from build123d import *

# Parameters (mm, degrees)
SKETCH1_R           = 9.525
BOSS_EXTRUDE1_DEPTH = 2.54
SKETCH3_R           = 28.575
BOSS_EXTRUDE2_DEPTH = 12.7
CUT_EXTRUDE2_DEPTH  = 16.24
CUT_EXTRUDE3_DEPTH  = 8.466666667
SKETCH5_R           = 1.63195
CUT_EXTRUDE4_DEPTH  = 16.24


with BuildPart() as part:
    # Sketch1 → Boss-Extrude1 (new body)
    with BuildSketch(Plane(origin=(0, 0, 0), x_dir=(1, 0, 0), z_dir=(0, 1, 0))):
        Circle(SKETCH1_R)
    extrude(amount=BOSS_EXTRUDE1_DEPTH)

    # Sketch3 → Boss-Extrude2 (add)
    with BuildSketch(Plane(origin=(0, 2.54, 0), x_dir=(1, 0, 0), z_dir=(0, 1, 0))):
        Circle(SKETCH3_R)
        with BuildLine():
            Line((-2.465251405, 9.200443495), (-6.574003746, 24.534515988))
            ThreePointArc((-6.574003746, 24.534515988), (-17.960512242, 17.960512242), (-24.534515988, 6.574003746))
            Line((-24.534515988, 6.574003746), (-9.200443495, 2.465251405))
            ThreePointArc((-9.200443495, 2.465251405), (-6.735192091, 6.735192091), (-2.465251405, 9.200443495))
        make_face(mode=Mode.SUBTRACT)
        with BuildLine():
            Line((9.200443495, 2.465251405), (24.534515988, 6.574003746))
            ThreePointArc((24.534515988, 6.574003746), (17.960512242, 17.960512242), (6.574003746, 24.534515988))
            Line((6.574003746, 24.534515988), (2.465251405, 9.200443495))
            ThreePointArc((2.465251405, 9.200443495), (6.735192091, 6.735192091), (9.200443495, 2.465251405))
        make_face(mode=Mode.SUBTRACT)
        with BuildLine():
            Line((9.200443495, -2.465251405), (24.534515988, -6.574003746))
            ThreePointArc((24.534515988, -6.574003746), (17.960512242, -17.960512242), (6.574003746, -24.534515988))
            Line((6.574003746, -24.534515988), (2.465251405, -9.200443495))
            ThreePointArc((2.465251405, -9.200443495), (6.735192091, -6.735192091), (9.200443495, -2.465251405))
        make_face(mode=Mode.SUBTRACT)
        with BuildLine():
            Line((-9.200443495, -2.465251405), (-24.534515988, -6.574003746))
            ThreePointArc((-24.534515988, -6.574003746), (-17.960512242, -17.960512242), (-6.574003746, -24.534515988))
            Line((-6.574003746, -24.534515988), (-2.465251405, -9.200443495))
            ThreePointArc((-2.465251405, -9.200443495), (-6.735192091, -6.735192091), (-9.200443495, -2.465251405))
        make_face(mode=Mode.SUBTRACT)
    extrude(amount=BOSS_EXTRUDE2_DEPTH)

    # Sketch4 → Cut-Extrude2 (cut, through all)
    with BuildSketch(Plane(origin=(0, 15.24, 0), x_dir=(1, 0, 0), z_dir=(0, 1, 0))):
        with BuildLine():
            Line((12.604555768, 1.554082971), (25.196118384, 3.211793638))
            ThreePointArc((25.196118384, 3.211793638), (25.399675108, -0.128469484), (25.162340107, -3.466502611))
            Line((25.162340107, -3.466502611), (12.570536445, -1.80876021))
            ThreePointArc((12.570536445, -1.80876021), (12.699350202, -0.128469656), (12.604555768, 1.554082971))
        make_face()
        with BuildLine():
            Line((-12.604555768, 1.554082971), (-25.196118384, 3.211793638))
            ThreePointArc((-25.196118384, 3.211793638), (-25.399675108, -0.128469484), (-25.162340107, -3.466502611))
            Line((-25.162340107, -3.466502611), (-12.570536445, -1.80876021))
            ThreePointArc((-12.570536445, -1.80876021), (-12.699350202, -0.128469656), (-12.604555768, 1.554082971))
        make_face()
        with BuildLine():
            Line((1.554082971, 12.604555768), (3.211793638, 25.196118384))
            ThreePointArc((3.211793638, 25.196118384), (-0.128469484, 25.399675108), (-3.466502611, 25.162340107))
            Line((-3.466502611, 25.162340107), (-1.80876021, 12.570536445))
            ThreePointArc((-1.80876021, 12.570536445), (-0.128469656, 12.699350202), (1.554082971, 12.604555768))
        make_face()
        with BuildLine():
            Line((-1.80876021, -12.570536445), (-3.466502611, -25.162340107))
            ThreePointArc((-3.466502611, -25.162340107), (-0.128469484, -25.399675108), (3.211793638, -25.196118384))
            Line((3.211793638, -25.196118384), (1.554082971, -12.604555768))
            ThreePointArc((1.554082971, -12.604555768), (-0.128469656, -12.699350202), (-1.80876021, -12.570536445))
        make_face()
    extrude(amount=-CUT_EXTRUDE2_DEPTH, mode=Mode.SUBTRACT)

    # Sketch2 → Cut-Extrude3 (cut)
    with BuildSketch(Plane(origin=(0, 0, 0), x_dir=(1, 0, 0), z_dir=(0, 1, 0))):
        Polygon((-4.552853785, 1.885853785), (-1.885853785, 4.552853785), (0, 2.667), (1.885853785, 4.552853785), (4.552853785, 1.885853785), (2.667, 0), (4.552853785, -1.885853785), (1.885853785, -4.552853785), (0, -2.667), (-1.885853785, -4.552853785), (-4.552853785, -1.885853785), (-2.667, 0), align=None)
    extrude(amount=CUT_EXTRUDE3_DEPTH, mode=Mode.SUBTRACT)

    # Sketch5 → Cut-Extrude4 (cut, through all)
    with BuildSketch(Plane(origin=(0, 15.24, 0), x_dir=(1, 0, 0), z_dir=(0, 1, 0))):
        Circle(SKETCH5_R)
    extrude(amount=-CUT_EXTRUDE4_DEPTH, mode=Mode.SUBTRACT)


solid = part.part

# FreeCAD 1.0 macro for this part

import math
import FreeCAD as App
import Part
import Sketcher
from FreeCAD import Vector
Q = App.Units.Quantity


def add_polygon(sketch, points):
    """Adds a closed chain of lines whose ends are joined by coincident constraints."""
    first, n = sketch.GeometryCount, len(points)
    for a, b in zip(points, points[1:] + points[:1]):
        sketch.addGeometry(Part.LineSegment(App.Vector(*a, 0), App.Vector(*b, 0)), False)
    for i in range(n):
        sketch.addConstraint(Sketcher.Constraint("Coincident", first + i, 2, first + (i + 1) % n, 1))

doc = App.newDocument("Part")
body = doc.addObject("PartDesign::Body", "Body")

sketch1 = body.newObject("Sketcher::SketchObject", "Sketch")
sketch1.AttachmentSupport = (doc.getObject("XZ_Plane"), [""])
sketch1.MapMode = "FlatFace"
sketch1.addGeometry(Part.Circle(Vector(0, 0, 0), Vector(0, 0, 1), 10), False)
sketch1.addConstraint([
    Sketcher.Constraint("Coincident", 0, 3, -1, 1),
    Sketcher.Constraint("Diameter", 0, Q("0.75 in")),
])
pad1 = body.newObject("PartDesign::Pad", "Pad")
pad1.Profile = sketch1
pad1.Length = Q("0.1 in")
pad1.Reversed = True

sketch2 = body.newObject("Sketcher::SketchObject", "Sketch001")
sketch2.AttachmentSupport = (doc.getObject("XZ_Plane"), [""])
sketch2.MapMode = "FlatFace"
sketch2.AttachmentOffset = App.Placement(Vector(0, 0, -0.1 * 25.4), App.Rotation())
sketch2.addGeometry([
    Part.Circle(Vector(0, 0, 0), Vector(0, 0, 1), 29),
    Part.LineSegment(Vector(-25, 7, 0), Vector(-9, 2, 0)),
    Part.ArcOfCircle(Part.Circle(Vector(0, 0, 0), Vector(0, 0, 1), 10), math.radians(105), math.radians(165)),
    Part.LineSegment(Vector(-2, 9, 0), Vector(-7, 25, 0)),
    Part.ArcOfCircle(Part.Circle(Vector(0, 0, 0), Vector(0, 0, 1), 25), math.radians(105), math.radians(165)),
    Part.ArcOfCircle(Part.Circle(Vector(0, 0, 0), Vector(0, 0, 1), 10), math.radians(15), math.radians(75)),
    Part.LineSegment(Vector(9, 2, 0), Vector(25, 7, 0)),
    Part.ArcOfCircle(Part.Circle(Vector(0, 0, 0), Vector(0, 0, 1), 25), math.radians(15), math.radians(75)),
    Part.LineSegment(Vector(7, 25, 0), Vector(2, 9, 0)),
    Part.LineSegment(Vector(-7, -25, 0), Vector(-2, -9, 0)),
    Part.ArcOfCircle(Part.Circle(Vector(0, 0, 0), Vector(0, 0, 1), 10), math.radians(-165), math.radians(-105)),
    Part.LineSegment(Vector(-9, -2, 0), Vector(-25, -7, 0)),
    Part.ArcOfCircle(Part.Circle(Vector(0, 0, 0), Vector(0, 0, 1), 25), math.radians(-165), math.radians(-105)),
    Part.LineSegment(Vector(25, -7, 0), Vector(9, -2, 0)),
    Part.ArcOfCircle(Part.Circle(Vector(0, 0, 0), Vector(0, 0, 1), 10), math.radians(-75), math.radians(-15)),
    Part.LineSegment(Vector(2, -9, 0), Vector(7, -25, 0)),
    Part.ArcOfCircle(Part.Circle(Vector(0, 0, 0), Vector(0, 0, 1), 25), math.radians(-75), math.radians(-15)),
], False)
sketch2.addConstraint([
    Sketcher.Constraint("Coincident", 1, 2, 2, 2),
    Sketcher.Constraint("Coincident", 2, 1, 3, 1),
    Sketcher.Constraint("Coincident", 3, 2, 4, 1),
    Sketcher.Constraint("Coincident", 4, 2, 1, 1),
    Sketcher.Constraint("Coincident", 5, 1, 6, 1),
    Sketcher.Constraint("Coincident", 6, 2, 7, 1),
    Sketcher.Constraint("Coincident", 7, 2, 8, 1),
    Sketcher.Constraint("Coincident", 8, 2, 5, 2),
    Sketcher.Constraint("Coincident", 9, 2, 10, 2),
    Sketcher.Constraint("Coincident", 10, 1, 11, 1),
    Sketcher.Constraint("Coincident", 11, 2, 12, 1),
    Sketcher.Constraint("Coincident", 12, 2, 9, 1),
    Sketcher.Constraint("Coincident", 13, 2, 14, 2),
    Sketcher.Constraint("Coincident", 14, 1, 15, 1),
    Sketcher.Constraint("Coincident", 15, 2, 16, 1),
    Sketcher.Constraint("Coincident", 16, 2, 13, 1),
    Sketcher.Constraint("Coincident", 0, 3, -1, 1),
    Sketcher.Constraint("Coincident", 2, 3, -1, 1),
    Sketcher.Constraint("Coincident", 4, 3, -1, 1),
    Sketcher.Constraint("Coincident", 5, 3, -1, 1),
    Sketcher.Constraint("Coincident", 7, 3, -1, 1),
    Sketcher.Constraint("Coincident", 10, 3, -1, 1),
    Sketcher.Constraint("Coincident", 12, 3, -1, 1),
    Sketcher.Constraint("Coincident", 14, 3, -1, 1),
    Sketcher.Constraint("Coincident", 16, 3, -1, 1),
    Sketcher.Constraint("Equal", 2, 5),
    Sketcher.Constraint("Equal", 4, 7),
    Sketcher.Constraint("Equal", 5, 10),
    Sketcher.Constraint("Equal", 7, 12),
    Sketcher.Constraint("Equal", 10, 14),
    Sketcher.Constraint("Equal", 12, 16),
    Sketcher.Constraint("Perpendicular", 3, 6),
    Sketcher.Constraint("Perpendicular", 1, 8),
    Sketcher.Constraint("Parallel", 8, 9),
    Sketcher.Constraint("Parallel", 6, 11),
    Sketcher.Constraint("Perpendicular", 9, 13),
    Sketcher.Constraint("Perpendicular", 11, 15),
    Sketcher.Constraint("Horizontal", 1, 2, 5, 1),
    Sketcher.Constraint("Horizontal", 4, 2, 6, 2),
    Sketcher.Constraint("Horizontal", 3, 2, 7, 2),
    Sketcher.Constraint("Horizontal", 10, 1, 13, 2),
    Sketcher.Constraint("Horizontal", 9, 2, 14, 1),
    Sketcher.Constraint("Vertical", 2, 1, 9, 2),
    Sketcher.Constraint("Vertical", 1, 2, 10, 1),
    Sketcher.Constraint("Radius", 4, Q("1 in")),
    Sketcher.Constraint("Diameter", 0, Q("2.25 in")),
    Sketcher.Constraint("Angle", 1, Q("-15 deg")),
    Sketcher.Constraint("Radius", 2, Q("0.375 in")),
    Sketcher.Constraint("DistanceY", -1, 1, 1, 2, 2.465251),
    Sketcher.Constraint("DistanceX", 2, 1, -1, 1, 2.465251),
])
pad2 = body.newObject("PartDesign::Pad", "Pad001")
pad2.Profile = sketch2
pad2.Length = Q("0.5 in")
pad2.Reversed = True

sketch3 = body.newObject("Sketcher::SketchObject", "Sketch002")
sketch3.AttachmentSupport = (doc.getObject("XZ_Plane"), [""])
sketch3.MapMode = "FlatFace"
sketch3.AttachmentOffset = App.Placement(Vector(0, 0, -0.6 * 25.4), App.Rotation())
sketch3.addGeometry([
    Part.LineSegment(Vector(25.2, -3.2, 0), Vector(12.6, -1.6, 0)),
    Part.ArcOfCircle(Part.Circle(Vector(0, 0, 0), Vector(0, 0, 1), 12.7), math.radians(-7.03), math.radians(8.19)),
    Part.LineSegment(Vector(12.6, 1.8, 0), Vector(25.2, 3.5, 0)),
    Part.ArcOfCircle(Part.Circle(Vector(0, 0, 0), Vector(0, 0, 1), 25.4), math.radians(-7.26), math.radians(7.84)),
    Part.LineSegment(Vector(-12.6, -1.6, 0), Vector(-25.2, -3.2, 0)),
    Part.ArcOfCircle(Part.Circle(Vector(0, 0, 0), Vector(0, 0, 1), 25.4), math.radians(172.16), math.radians(187.26)),
    Part.LineSegment(Vector(-25.2, 3.5, 0), Vector(-12.6, 1.8, 0)),
    Part.ArcOfCircle(Part.Circle(Vector(0, 0, 0), Vector(0, 0, 1), 12.7), math.radians(171.81), math.radians(187.03)),
    Part.LineSegment(Vector(1.6, -12.6, 0), Vector(3.2, -25.2, 0)),
    Part.ArcOfCircle(Part.Circle(Vector(0, 0, 0), Vector(0, 0, 1), 25.4), math.radians(-97.84), math.radians(-82.74)),
    Part.LineSegment(Vector(-3.5, -25.2, 0), Vector(-1.8, -12.6, 0)),
    Part.ArcOfCircle(Part.Circle(Vector(0, 0, 0), Vector(0, 0, 1), 12.7), math.radians(-98.19), math.radians(-82.97)),
    Part.LineSegment(Vector(-1.8, 12.6, 0), Vector(-3.5, 25.2, 0)),
    Part.ArcOfCircle(Part.Circle(Vector(0, 0, 0), Vector(0, 0, 1), 25.4), math.radians(82.74), math.radians(97.84)),
    Part.LineSegment(Vector(3.2, 25.2, 0), Vector(1.6, 12.6, 0)),
    Part.ArcOfCircle(Part.Circle(Vector(0, 0, 0), Vector(0, 0, 1), 12.7), math.radians(82.97), math.radians(98.19)),
], False)
sketch3.addConstraint([
    Sketcher.Constraint("Coincident", 0, 2, 1, 1),
    Sketcher.Constraint("Coincident", 1, 2, 2, 1),
    Sketcher.Constraint("Coincident", 2, 2, 3, 2),
    Sketcher.Constraint("Coincident", 3, 1, 0, 1),
    Sketcher.Constraint("Coincident", 4, 2, 5, 2),
    Sketcher.Constraint("Coincident", 5, 1, 6, 1),
    Sketcher.Constraint("Coincident", 6, 2, 7, 1),
    Sketcher.Constraint("Coincident", 7, 2, 4, 1),
    Sketcher.Constraint("Coincident", 8, 2, 9, 2),
    Sketcher.Constraint("Coincident", 9, 1, 10, 1),
    Sketcher.Constraint("Coincident", 10, 2, 11, 1),
    Sketcher.Constraint("Coincident", 11, 2, 8, 1),
    Sketcher.Constraint("Coincident", 12, 2, 13, 2),
    Sketcher.Constraint("Coincident", 13, 1, 14, 1),
    Sketcher.Constraint("Coincident", 14, 2, 15, 1),
    Sketcher.Constraint("Coincident", 15, 2, 12, 1),
    Sketcher.Constraint("Coincident", 1, 3, -1, 1),
    Sketcher.Constraint("Coincident", 3, 3, -1, 1),
    Sketcher.Constraint("Coincident", 5, 3, -1, 1),
    Sketcher.Constraint("Coincident", 7, 3, -1, 1),
    Sketcher.Constraint("Coincident", 9, 3, -1, 1),
    Sketcher.Constraint("Coincident", 11, 3, -1, 1),
    Sketcher.Constraint("Coincident", 13, 3, -1, 1),
    Sketcher.Constraint("Coincident", 15, 3, -1, 1),
    Sketcher.Constraint("Equal", 3, 5),
    Sketcher.Constraint("Equal", 1, 7),
    Sketcher.Constraint("Equal", 5, 9),
    Sketcher.Constraint("Equal", 7, 11),
    Sketcher.Constraint("Equal", 9, 13),
    Sketcher.Constraint("Equal", 11, 15),
    Sketcher.Constraint("Parallel", 2, 4),
    Sketcher.Constraint("Parallel", 0, 6),
    Sketcher.Constraint("Perpendicular", 4, 8),
    Sketcher.Constraint("Perpendicular", 6, 10),
    Sketcher.Constraint("Parallel", 8, 12),
    Sketcher.Constraint("Parallel", 10, 14),
    Sketcher.Constraint("Horizontal", 3, 1, 4, 2),
    Sketcher.Constraint("Horizontal", 2, 2, 5, 1),
    Sketcher.Constraint("Horizontal", 1, 2, 6, 2),
    Sketcher.Constraint("Vertical", 9, 1, 12, 2),
    Sketcher.Constraint("Vertical", 8, 2, 13, 1),
    Sketcher.Constraint("Equal", 6, 10),
    Sketcher.Constraint("Radius", 3, Q("1 in")),
    Sketcher.Constraint("Radius", 1, Q("0.5 in")),
    Sketcher.Constraint("Angle", 0, Q("172.5 deg")),
    Sketcher.Constraint("DistanceY", -1, 1, 1, 2, 1.80876),
    Sketcher.Constraint("DistanceX", -1, 1, 3, 1, 25.196118),
    Sketcher.Constraint("DistanceY", 8, 2, -1, 1, 25.196118),
])
pocket1 = body.newObject("PartDesign::Pocket", "Pocket")
pocket1.Profile = sketch3
pocket1.Type = "ThroughAll"
pocket1.Reversed = True

sketch4 = body.newObject("Sketcher::SketchObject", "Sketch003")
sketch4.AttachmentSupport = (doc.getObject("XZ_Plane"), [""])
sketch4.MapMode = "FlatFace"
add_polygon(sketch4, [(-1.9, -4.6), (-4.6, -1.9), (-2.7, 0), (-4.6, 1.9), (-1.9, 4.6), (0, 2.7), (1.9, 4.6), (4.6, 1.9), (2.7, 0), (4.6, -1.9), (1.9, -4.6), (0, -2.7)])
sketch4.addConstraint([
    Sketcher.Constraint("Symmetric", 0, 2, 6, 2, -1, 1),
    Sketcher.Constraint("Symmetric", 1, 2, 7, 2, -1, 1),
    Sketcher.Constraint("Symmetric", 2, 2, 8, 2, -1, 1),
    Sketcher.Constraint("Symmetric", 3, 2, 9, 2, -1, 1),
    Sketcher.Constraint("Symmetric", 4, 2, 10, 2, -1, 1),
    Sketcher.Constraint("Symmetric", 5, 2, 11, 2, -1, 1),
    Sketcher.Constraint("Symmetric", 3, 2, 5, 2, -2),
    Sketcher.Constraint("Symmetric", 2, 2, 6, 2, -2),
    Sketcher.Constraint("PointOnObject", 1, 2, -1),
    Sketcher.Constraint("PointOnObject", 4, 2, -2),
    Sketcher.Constraint("Perpendicular", 0, 1),
    Sketcher.Constraint("Perpendicular", 1, 2),
    Sketcher.Constraint("Perpendicular", 3, 4),
    Sketcher.Constraint("Equal", 2, 4),
    Sketcher.Constraint("DistanceX", 1, 2, 7, 2, Q("0.21 in")),
    Sketcher.Constraint("Distance", 1, Q("0.105 in")),
])
pocket2 = body.newObject("PartDesign::Pocket", "Pocket001")
pocket2.Profile = sketch4
pocket2.Length = 8.466667

sketch5 = body.newObject("Sketcher::SketchObject", "Sketch004")
sketch5.AttachmentSupport = (doc.getObject("XZ_Plane"), [""])
sketch5.MapMode = "FlatFace"
sketch5.AttachmentOffset = App.Placement(Vector(0, 0, -0.6 * 25.4), App.Rotation())
sketch5.addGeometry(Part.Circle(Vector(0, 0, 0), Vector(0, 0, 1), 1.6), False)
sketch5.addConstraint([
    Sketcher.Constraint("Coincident", 0, 3, -1, 1),
    Sketcher.Constraint("Diameter", 0, Q("0.1285 in")),
])
pocket3 = body.newObject("PartDesign::Pocket", "Pocket002")
pocket3.Profile = sketch5
pocket3.Type = "ThroughAll"
pocket3.Reversed = True

doc.recompute()
